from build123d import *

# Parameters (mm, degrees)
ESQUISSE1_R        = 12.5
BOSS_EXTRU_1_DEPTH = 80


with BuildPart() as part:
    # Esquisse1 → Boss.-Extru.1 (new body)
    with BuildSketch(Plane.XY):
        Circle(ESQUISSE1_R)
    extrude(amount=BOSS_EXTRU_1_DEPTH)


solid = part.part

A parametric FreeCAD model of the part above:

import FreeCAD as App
import Part
import Sketcher
Q = App.Units.Quantity

doc = App.newDocument("Part")
body = doc.addObject("PartDesign::Body", "Body")

# Sketch on XY plane
sketch1 = body.newObject("Sketcher::SketchObject", "Sketch")
sketch1.AttachmentSupport = (doc.getObject("XY_Plane"), [""])
sketch1.MapMode = "FlatFace"
sketch1.addGeometry(Part.Circle(App.Vector(0, 0, 0), App.Vector(0, 0, 1), 12), False)
sketch1.addConstraint([
    Sketcher.Constraint("Coincident", 0, 3, -1, 1),
    Sketcher.Constraint("Diameter", 0, Q("25 mm")),
])
pad1 = body.newObject("PartDesign::Pad", "Pad")
pad1.Profile = sketch1
pad1.Length = 80

doc.recompute()
